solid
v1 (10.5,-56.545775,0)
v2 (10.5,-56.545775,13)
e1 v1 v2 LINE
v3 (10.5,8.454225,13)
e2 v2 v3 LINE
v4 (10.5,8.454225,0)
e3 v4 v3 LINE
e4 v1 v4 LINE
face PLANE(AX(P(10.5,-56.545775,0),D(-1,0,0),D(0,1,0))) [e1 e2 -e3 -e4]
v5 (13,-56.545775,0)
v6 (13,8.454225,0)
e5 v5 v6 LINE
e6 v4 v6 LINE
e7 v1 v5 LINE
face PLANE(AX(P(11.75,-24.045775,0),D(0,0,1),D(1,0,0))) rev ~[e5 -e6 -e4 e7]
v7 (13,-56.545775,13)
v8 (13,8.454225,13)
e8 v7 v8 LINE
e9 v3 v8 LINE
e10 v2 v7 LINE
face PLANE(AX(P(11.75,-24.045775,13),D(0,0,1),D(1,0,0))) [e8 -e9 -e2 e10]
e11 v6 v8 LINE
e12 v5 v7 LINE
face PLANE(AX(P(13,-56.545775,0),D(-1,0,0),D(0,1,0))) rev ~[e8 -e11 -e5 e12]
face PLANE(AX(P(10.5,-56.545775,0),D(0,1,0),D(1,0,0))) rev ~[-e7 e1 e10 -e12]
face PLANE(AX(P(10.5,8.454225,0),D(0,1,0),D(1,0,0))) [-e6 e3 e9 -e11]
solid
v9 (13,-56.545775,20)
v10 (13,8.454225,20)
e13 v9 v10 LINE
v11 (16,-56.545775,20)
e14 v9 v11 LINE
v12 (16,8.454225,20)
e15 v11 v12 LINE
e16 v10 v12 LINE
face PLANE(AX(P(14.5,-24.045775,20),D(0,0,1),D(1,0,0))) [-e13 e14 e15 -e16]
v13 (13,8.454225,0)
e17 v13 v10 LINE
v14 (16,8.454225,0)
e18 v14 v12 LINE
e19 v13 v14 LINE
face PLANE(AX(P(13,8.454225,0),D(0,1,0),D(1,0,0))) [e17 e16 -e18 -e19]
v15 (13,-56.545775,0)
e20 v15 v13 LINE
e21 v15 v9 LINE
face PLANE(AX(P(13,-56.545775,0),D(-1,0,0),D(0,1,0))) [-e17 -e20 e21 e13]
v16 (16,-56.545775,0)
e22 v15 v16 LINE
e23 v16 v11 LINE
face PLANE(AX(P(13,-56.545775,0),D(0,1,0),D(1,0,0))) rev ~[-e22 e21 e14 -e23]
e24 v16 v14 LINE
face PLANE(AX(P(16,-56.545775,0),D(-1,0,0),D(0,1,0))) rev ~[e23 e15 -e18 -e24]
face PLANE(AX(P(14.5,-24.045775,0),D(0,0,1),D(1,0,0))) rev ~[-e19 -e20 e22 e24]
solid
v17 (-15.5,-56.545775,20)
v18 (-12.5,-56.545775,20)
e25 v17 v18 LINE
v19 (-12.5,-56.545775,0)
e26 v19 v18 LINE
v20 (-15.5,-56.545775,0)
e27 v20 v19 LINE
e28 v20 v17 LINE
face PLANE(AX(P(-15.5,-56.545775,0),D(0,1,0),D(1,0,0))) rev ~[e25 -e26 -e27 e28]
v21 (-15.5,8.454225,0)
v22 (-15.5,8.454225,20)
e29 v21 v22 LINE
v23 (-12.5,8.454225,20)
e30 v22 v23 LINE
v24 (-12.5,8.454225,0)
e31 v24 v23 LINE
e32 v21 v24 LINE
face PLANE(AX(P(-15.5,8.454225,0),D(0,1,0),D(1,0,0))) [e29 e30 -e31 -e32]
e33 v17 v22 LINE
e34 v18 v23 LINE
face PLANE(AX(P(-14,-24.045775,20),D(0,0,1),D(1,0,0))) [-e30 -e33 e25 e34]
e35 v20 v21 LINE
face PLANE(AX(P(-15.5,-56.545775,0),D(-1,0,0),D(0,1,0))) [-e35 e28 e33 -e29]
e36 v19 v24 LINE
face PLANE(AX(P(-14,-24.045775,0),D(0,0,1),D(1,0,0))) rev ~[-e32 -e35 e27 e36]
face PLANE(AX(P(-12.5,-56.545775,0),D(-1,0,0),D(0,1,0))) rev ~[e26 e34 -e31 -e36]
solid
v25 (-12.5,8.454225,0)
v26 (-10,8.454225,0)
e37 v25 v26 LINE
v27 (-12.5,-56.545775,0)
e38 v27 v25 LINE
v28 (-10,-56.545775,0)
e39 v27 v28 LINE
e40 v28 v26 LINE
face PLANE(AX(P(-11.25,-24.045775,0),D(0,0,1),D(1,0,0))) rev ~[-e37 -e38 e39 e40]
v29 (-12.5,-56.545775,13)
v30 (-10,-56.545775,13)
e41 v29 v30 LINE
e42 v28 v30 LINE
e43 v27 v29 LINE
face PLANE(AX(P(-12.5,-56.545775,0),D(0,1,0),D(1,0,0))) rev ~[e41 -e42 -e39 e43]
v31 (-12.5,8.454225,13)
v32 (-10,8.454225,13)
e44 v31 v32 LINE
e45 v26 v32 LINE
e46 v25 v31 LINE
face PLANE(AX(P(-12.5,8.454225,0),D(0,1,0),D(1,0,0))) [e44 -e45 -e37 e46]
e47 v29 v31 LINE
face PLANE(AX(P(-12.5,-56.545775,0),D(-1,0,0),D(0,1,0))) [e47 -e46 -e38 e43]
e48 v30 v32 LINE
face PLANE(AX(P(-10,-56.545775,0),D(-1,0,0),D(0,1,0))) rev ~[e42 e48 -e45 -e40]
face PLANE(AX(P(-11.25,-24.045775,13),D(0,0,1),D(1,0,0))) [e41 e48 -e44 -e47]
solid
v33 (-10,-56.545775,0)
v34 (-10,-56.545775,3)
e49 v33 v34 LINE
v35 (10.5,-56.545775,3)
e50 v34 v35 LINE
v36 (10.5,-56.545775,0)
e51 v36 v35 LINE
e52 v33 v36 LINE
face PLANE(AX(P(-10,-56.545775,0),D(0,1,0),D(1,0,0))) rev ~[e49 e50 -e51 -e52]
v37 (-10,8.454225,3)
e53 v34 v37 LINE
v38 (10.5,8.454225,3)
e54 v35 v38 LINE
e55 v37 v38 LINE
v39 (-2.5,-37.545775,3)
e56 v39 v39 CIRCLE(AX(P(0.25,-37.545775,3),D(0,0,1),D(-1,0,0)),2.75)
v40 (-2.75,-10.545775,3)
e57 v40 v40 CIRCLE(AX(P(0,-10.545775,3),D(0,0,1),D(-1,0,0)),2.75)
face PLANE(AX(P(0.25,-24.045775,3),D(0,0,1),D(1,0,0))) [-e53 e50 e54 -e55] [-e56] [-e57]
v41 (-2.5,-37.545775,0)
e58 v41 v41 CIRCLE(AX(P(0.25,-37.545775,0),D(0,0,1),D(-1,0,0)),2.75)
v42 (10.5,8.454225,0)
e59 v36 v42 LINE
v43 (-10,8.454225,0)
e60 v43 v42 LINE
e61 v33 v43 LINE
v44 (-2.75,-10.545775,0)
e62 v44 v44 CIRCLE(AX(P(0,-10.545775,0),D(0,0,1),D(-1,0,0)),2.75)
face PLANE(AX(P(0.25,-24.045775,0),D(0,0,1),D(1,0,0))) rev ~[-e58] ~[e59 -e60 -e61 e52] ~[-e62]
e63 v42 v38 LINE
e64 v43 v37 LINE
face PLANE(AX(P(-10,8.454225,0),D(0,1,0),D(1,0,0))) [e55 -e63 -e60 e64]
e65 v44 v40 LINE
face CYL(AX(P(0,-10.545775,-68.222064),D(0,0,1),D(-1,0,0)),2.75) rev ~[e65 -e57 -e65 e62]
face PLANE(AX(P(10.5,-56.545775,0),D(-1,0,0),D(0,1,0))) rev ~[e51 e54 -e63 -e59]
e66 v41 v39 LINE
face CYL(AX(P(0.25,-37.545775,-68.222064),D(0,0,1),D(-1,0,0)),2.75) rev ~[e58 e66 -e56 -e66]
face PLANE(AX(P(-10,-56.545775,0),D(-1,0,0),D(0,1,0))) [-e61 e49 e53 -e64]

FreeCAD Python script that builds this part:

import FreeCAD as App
import Part
import Sketcher

V = App.Vector


def add_polygon(sketch, points):
    """Adds a closed chain of lines whose ends are joined by coincident constraints."""
    first, n = sketch.GeometryCount, len(points)
    for a, b in zip(points, points[1:] + points[:1]):
        sketch.addGeometry(Part.LineSegment(App.Vector(*a, 0), App.Vector(*b, 0)), False)
    for i in range(n):
        sketch.addConstraint(Sketcher.Constraint("Coincident", first + i, 2, first + (i + 1) % n, 1))

doc = App.newDocument("Part")
body = doc.addObject("PartDesign::Body", "Body")

# Sketch on XY plane
sketch1 = doc.addObject("Sketcher::SketchObject", "Sketch")
body.addObject(sketch1)
sketch1.AttachmentSupport = (doc.XY_Plane, [""])
sketch1.MapMode = "FlatFace"
add_polygon(sketch1, [(-10, 8), (-10, -57), (10, -57), (10, 8)])  # lines 0-3
sketch1.addConstraint(Sketcher.Constraint("Vertical", 0))
sketch1.addConstraint(Sketcher.Constraint("Horizontal", 1))
sketch1.addConstraint(Sketcher.Constraint("Vertical", 2))
sketch1.addConstraint(Sketcher.Constraint("Horizontal", 3))
sketch1.addConstraint(Sketcher.Constraint("DistanceY", 0, 2, 0, 1, 65.0))
sketch1.addConstraint(Sketcher.Constraint("DistanceX", 1, 1, 1, 2, 20.5))
sketch1.addConstraint(Sketcher.Constraint("DistanceX", 0, 2, -1, 1, 10.0))
sketch1.addConstraint(Sketcher.Constraint("DistanceY", 0, 2, -1, 1, 56.545775))
pad1 = doc.addObject("PartDesign::Pad", "Pad")
body.addObject(pad1)
pad1.Profile = sketch1
pad1.Length = 3

# Sketch on XY plane
sketch2 = doc.addObject("Sketcher::SketchObject", "Sketch001")
body.addObject(sketch2)
sketch2.AttachmentSupport = (doc.XY_Plane, [""])
sketch2.MapMode = "FlatFace"
sketch2.addGeometry(Part.Circle(V(0, -10.5, 0), V(0, 0, 1), 2.8), False)
sketch2.addGeometry(Part.Circle(V(0.2, -37.5, 0), V(0, 0, 1), 2.8), False)
sketch2.addConstraint(Sketcher.Constraint("Equal", 0, 1))
sketch2.addConstraint(Sketcher.Constraint("PointOnObject", 0, 3, -2))
sketch2.addConstraint(Sketcher.Constraint("Diameter", 0, 5.5))
sketch2.addConstraint(Sketcher.Constraint("DistanceY", 1, 3, 0, 3, 27.0))
sketch2.addConstraint(Sketcher.Constraint("DistanceX", -1, 1, 1, 3, 0.25))
sketch2.addConstraint(Sketcher.Constraint("DistanceY", 0, 3, -1, 1, 10.545775))
doc.recompute()
hole = doc.addObject("PartDesign::Hole", "Hole")
body.addObject(hole)
hole.Profile = sketch2
hole.ThreadType = "None"
hole.Diameter = 5.5
hole.DepthType = "ThroughAll"
hole.Reversed = True
body2 = doc.addObject("PartDesign::Body", "Body001")

# Sketch on XY plane
sketch3 = doc.addObject("Sketcher::SketchObject", "Sketch002")
body2.addObject(sketch3)
sketch3.AttachmentSupport = (doc.getObject("XY_Plane001"), [""])
sketch3.MapMode = "FlatFace"
add_polygon(sketch3, [(13, 8.5), (13, -56.5), (16, -56.5), (16, 8.5)])  # lines 0-3
sketch3.addConstraint(Sketcher.Constraint("Vertical", 0))
sketch3.addConstraint(Sketcher.Constraint("Horizontal", 1))
sketch3.addConstraint(Sketcher.Constraint("Vertical", 2))
sketch3.addConstraint(Sketcher.Constraint("Horizontal", 3))
sketch3.addConstraint(Sketcher.Constraint("DistanceX", 1, 1, 1, 2, 3.0))
sketch3.addConstraint(Sketcher.Constraint("DistanceY", 0, 2, 0, 1, 65.0))
sketch3.addConstraint(Sketcher.Constraint("DistanceX", -1, 1, 0, 2, 13.0))
sketch3.addConstraint(Sketcher.Constraint("DistanceY", 0, 2, -1, 1, 56.545775))
pad2 = doc.addObject("PartDesign::Pad", "Pad001")
body2.addObject(pad2)
pad2.Profile = sketch3
pad2.Length = 20
body3 = doc.addObject("PartDesign::Body", "Body002")

# Sketch on XY plane
sketch4 = doc.addObject("Sketcher::SketchObject", "Sketch003")
body3.addObject(sketch4)
sketch4.AttachmentSupport = (doc.getObject("XY_Plane002"), [""])
sketch4.MapMode = "FlatFace"
add_polygon(sketch4, [(-15.5, 8.5), (-15.5, -56.5), (-12.5, -56.5), (-12.5, 8.5)])  # lines 0-3
sketch4.addConstraint(Sketcher.Constraint("Vertical", 0))
sketch4.addConstraint(Sketcher.Constraint("Horizontal", 1))
sketch4.addConstraint(Sketcher.Constraint("Vertical", 2))
sketch4.addConstraint(Sketcher.Constraint("Horizontal", 3))
sketch4.addConstraint(Sketcher.Constraint("DistanceX", 1, 1, 1, 2, 3.0))
sketch4.addConstraint(Sketcher.Constraint("DistanceY", 0, 2, 0, 1, 65.0))
sketch4.addConstraint(Sketcher.Constraint("DistanceX", 0, 2, -1, 1, 15.5))
sketch4.addConstraint(Sketcher.Constraint("DistanceY", 0, 2, -1, 1, 56.545775))
pad3 = doc.addObject("PartDesign::Pad", "Pad002")
body3.addObject(pad3)
pad3.Profile = sketch4
pad3.Length = 20
body4 = doc.addObject("PartDesign::Body", "Body003")

# Sketch on XY plane
sketch5 = doc.addObject("Sketcher::SketchObject", "Sketch004")
body4.addObject(sketch5)
sketch5.AttachmentSupport = (doc.getObject("XY_Plane003"), [""])
sketch5.MapMode = "FlatFace"
add_polygon(sketch5, [(10.5, 8.5), (10.5, -56.5), (13, -56.5), (13, 8.5)])  # lines 0-3
sketch5.addConstraint(Sketcher.Constraint("Vertical", 0))
sketch5.addConstraint(Sketcher.Constraint("Horizontal", 1))
sketch5.addConstraint(Sketcher.Constraint("Vertical", 2))
sketch5.addConstraint(Sketcher.Constraint("Horizontal", 3))
sketch5.addConstraint(Sketcher.Constraint("DistanceY", 0, 2, 0, 1, 65.0))
sketch5.addConstraint(Sketcher.Constraint("DistanceX", 1, 1, 1, 2, 2.5))
sketch5.addConstraint(Sketcher.Constraint("DistanceX", -1, 1, 1, 2, 13.0))
sketch5.addConstraint(Sketcher.Constraint("DistanceY", 0, 2, -1, 1, 56.545775))
pad4 = doc.addObject("PartDesign::Pad", "Pad003")
body4.addObject(pad4)
pad4.Profile = sketch5
pad4.Length = 13
body5 = doc.addObject("PartDesign::Body", "Body004")

# Sketch on XY plane
sketch6 = doc.addObject("Sketcher::SketchObject", "Sketch005")
body5.addObject(sketch6)
sketch6.AttachmentSupport = (doc.getObject("XY_Plane004"), [""])
sketch6.MapMode = "FlatFace"
add_polygon(sketch6, [(-12.5, 8.5), (-12.5, -56.5), (-10, -56.5), (-10, 8.5)])  # lines 0-3
sketch6.addConstraint(Sketcher.Constraint("Vertical", 0))
sketch6.addConstraint(Sketcher.Constraint("Horizontal", 1))
sketch6.addConstraint(Sketcher.Constraint("Vertical", 2))
sketch6.addConstraint(Sketcher.Constraint("Horizontal", 3))
sketch6.addConstraint(Sketcher.Constraint("DistanceY", 0, 2, 0, 1, 65.0))
sketch6.addConstraint(Sketcher.Constraint("DistanceX", 1, 1, 1, 2, 2.5))
sketch6.addConstraint(Sketcher.Constraint("DistanceX", 1, 2, -1, 1, 10.0))
sketch6.addConstraint(Sketcher.Constraint("DistanceY", 0, 2, -1, 1, 56.545775))
pad5 = doc.addObject("PartDesign::Pad", "Pad004")
body5.addObject(pad5)
pad5.Profile = sketch6
pad5.Length = 13

doc.recompute()
